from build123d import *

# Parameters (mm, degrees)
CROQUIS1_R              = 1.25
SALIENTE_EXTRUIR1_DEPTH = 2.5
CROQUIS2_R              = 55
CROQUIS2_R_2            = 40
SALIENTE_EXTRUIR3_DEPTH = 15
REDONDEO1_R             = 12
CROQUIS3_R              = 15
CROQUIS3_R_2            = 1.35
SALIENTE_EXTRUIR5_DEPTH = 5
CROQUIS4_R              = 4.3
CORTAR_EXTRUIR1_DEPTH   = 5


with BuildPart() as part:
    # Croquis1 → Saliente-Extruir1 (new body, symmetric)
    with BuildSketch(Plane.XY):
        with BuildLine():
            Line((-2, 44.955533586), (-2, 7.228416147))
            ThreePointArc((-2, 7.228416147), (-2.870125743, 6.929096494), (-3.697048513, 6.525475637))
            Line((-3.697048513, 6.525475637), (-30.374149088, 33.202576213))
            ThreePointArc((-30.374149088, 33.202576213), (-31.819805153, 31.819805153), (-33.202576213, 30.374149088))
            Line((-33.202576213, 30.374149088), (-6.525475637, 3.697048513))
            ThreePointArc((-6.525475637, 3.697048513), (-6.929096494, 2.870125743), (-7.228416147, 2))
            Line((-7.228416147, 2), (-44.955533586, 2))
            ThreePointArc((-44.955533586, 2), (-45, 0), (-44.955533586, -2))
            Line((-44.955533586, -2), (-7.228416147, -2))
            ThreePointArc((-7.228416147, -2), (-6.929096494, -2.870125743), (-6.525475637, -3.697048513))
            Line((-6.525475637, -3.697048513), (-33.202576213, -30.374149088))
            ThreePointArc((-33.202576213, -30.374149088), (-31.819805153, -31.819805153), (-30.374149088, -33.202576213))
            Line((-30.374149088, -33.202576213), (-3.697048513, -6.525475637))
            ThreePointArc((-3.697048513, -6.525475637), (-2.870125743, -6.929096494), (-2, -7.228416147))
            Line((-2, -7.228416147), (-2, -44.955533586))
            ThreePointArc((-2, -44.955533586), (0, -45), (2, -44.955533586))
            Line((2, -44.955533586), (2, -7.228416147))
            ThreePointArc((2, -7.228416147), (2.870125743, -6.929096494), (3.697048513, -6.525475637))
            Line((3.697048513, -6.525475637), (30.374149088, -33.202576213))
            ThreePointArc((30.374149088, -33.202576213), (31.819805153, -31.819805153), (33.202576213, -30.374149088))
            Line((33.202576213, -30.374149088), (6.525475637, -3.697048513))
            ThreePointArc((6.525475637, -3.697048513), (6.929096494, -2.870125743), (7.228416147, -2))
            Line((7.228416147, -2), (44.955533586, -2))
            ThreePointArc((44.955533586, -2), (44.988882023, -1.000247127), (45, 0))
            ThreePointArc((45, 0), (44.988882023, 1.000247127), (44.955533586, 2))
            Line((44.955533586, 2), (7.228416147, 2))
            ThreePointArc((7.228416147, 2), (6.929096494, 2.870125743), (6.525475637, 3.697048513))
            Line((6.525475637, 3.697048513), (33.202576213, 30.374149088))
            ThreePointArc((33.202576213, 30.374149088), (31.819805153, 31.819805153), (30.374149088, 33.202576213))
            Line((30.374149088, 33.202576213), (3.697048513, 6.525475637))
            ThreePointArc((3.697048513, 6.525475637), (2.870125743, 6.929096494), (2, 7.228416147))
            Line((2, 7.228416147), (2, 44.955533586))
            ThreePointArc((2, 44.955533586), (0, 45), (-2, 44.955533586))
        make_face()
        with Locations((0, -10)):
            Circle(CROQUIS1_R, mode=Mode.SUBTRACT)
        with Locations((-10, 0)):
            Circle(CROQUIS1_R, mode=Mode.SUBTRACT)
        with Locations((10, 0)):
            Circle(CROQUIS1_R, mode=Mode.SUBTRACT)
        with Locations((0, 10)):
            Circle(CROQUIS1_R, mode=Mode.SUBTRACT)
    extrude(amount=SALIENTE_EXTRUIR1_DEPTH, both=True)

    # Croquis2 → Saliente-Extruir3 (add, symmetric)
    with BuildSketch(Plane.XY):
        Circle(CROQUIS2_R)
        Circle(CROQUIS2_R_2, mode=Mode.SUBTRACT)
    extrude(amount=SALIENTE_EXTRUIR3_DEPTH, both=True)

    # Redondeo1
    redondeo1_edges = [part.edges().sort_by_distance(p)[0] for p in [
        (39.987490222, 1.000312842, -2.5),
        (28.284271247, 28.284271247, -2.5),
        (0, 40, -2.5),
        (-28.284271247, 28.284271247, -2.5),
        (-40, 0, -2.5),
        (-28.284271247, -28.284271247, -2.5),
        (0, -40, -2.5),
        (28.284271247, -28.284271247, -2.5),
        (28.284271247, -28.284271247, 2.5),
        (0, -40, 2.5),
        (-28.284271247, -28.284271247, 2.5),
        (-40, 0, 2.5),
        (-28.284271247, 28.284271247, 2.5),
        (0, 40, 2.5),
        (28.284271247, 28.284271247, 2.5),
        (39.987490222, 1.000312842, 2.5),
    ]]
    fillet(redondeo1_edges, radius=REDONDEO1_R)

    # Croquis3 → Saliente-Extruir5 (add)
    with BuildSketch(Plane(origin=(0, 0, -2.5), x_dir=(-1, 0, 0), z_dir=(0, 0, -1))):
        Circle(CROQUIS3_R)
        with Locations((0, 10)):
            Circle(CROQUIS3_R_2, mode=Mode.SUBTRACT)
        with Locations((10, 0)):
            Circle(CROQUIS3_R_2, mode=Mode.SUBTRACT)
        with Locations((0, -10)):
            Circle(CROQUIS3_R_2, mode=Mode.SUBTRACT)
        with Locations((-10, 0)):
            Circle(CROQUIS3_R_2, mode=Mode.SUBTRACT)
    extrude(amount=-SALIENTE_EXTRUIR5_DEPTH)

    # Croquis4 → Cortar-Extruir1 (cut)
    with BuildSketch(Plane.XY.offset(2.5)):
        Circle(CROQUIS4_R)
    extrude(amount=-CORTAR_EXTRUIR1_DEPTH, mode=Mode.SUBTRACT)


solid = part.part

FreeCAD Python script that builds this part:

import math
import FreeCAD as App
import Part
import Sketcher


def edges_at(feature, points):
    """Names of the edges that pass closest to the given points."""
    edges = feature.Shape.Edges
    near = lambda p: min(range(len(edges)), key=lambda i: edges[i].distToShape(Part.Vertex(*p))[0])
    return sorted({f"Edge{near(p) + 1}" for p in points})

doc = App.newDocument("Part")
body = doc.addObject("PartDesign::Body", "Body")

# Sketch on XY plane
sketch1 = body.newObject("Sketcher::SketchObject", "Sketch")
sketch1.AttachmentSupport = (doc.getObject("XY_Plane"), [""])
sketch1.MapMode = "FlatFace"
sketch1.addGeometry([
    Part.LineSegment(App.Vector(-2, 45, 0), App.Vector(-2, 7.2, 0)),  # 0
    Part.ArcOfCircle(Part.Circle(App.Vector(0, 0, 0), App.Vector(0, 0, 1), 7.5), math.radians(105.47), math.radians(119.53)),  # 1
    Part.LineSegment(App.Vector(-3.7, 6.5, 0), App.Vector(-30.4, 33.2, 0)),  # 2
    Part.ArcOfCircle(Part.Circle(App.Vector(0, 0, 0), App.Vector(0, 0, 1), 45), math.radians(132.45), math.radians(137.55)),  # 3
    Part.LineSegment(App.Vector(-33.2, 30.4, 0), App.Vector(-6.5, 3.7, 0)),  # 4
    Part.ArcOfCircle(Part.Circle(App.Vector(0, 0, 0), App.Vector(0, 0, 1), 7.5), math.radians(150.47), math.radians(164.53)),  # 5
    Part.LineSegment(App.Vector(-7.2, 2, 0), App.Vector(-45, 2, 0)),  # 6
    Part.ArcOfCircle(Part.Circle(App.Vector(0, 0, 0), App.Vector(0, 0, 1), 45), math.radians(177.45), math.radians(182.55)),  # 7
    Part.LineSegment(App.Vector(-45, -2, 0), App.Vector(-7.2, -2, 0)),  # 8
    Part.ArcOfCircle(Part.Circle(App.Vector(0, 0, 0), App.Vector(0, 0, 1), 7.5), math.radians(-164.53), math.radians(-150.47)),  # 9
    Part.LineSegment(App.Vector(-6.5, -3.7, 0), App.Vector(-33.2, -30.4, 0)),  # 10
    Part.ArcOfCircle(Part.Circle(App.Vector(0, 0, 0), App.Vector(0, 0, 1), 45), math.radians(-137.55), math.radians(-132.45)),  # 11
    Part.LineSegment(App.Vector(-30.4, -33.2, 0), App.Vector(-3.7, -6.5, 0)),  # 12
    Part.ArcOfCircle(Part.Circle(App.Vector(0, 0, 0), App.Vector(0, 0, 1), 7.5), math.radians(-119.53), math.radians(-105.47)),  # 13
    Part.LineSegment(App.Vector(-2, -7.2, 0), App.Vector(-2, -45, 0)),  # 14
    Part.ArcOfCircle(Part.Circle(App.Vector(0, 0, 0), App.Vector(0, 0, 1), 45), math.radians(-92.55), math.radians(-87.45)),  # 15
    Part.LineSegment(App.Vector(2, -45, 0), App.Vector(2, -7.2, 0)),  # 16
    Part.ArcOfCircle(Part.Circle(App.Vector(0, 0, 0), App.Vector(0, 0, 1), 7.5), math.radians(-74.53), math.radians(-60.47)),  # 17
    Part.LineSegment(App.Vector(3.7, -6.5, 0), App.Vector(30.4, -33.2, 0)),  # 18
    Part.ArcOfCircle(Part.Circle(App.Vector(0, 0, 0), App.Vector(0, 0, 1), 45), math.radians(-47.55), math.radians(-42.45)),  # 19
    Part.LineSegment(App.Vector(33.2, -30.4, 0), App.Vector(6.5, -3.7, 0)),  # 20
    Part.ArcOfCircle(Part.Circle(App.Vector(0, 0, 0), App.Vector(0, 0, 1), 7.5), math.radians(-29.53), math.radians(-15.47)),  # 21
    Part.LineSegment(App.Vector(7.2, -2, 0), App.Vector(45, -2, 0)),  # 22
    Part.ArcOfCircle(Part.Circle(App.Vector(0, 0, 0), App.Vector(0, 0, 1), 45), math.radians(-2.55), math.radians(0)),  # 23
    Part.ArcOfCircle(Part.Circle(App.Vector(0, 0, 0), App.Vector(0, 0, 1), 45), math.radians(0), math.radians(2.55)),  # 24
    Part.LineSegment(App.Vector(45, 2, 0), App.Vector(7.2, 2, 0)),  # 25
    Part.ArcOfCircle(Part.Circle(App.Vector(0, 0, 0), App.Vector(0, 0, 1), 7.5), math.radians(15.47), math.radians(29.53)),  # 26
    Part.LineSegment(App.Vector(6.5, 3.7, 0), App.Vector(33.2, 30.4, 0)),  # 27
    Part.ArcOfCircle(Part.Circle(App.Vector(0, 0, 0), App.Vector(0, 0, 1), 45), math.radians(42.45), math.radians(47.55)),  # 28
    Part.LineSegment(App.Vector(30.4, 33.2, 0), App.Vector(3.7, 6.5, 0)),  # 29
    Part.ArcOfCircle(Part.Circle(App.Vector(0, 0, 0), App.Vector(0, 0, 1), 7.5), math.radians(60.47), math.radians(74.53)),  # 30
    Part.LineSegment(App.Vector(2, 7.2, 0), App.Vector(2, 45, 0)),  # 31
    Part.ArcOfCircle(Part.Circle(App.Vector(0, 0, 0), App.Vector(0, 0, 1), 45), math.radians(87.45), math.radians(92.55)),  # 32
    Part.Circle(App.Vector(0, -10, 0), App.Vector(0, 0, 1), 1.2),  # 33
    Part.Circle(App.Vector(-10, 0, 0), App.Vector(0, 0, 1), 1.2),  # 34
    Part.Circle(App.Vector(10, 0, 0), App.Vector(0, 0, 1), 1.2),  # 35
    Part.Circle(App.Vector(0, 10, 0), App.Vector(0, 0, 1), 1.2),  # 36
], False)
sketch1.addConstraint([
    Sketcher.Constraint("Coincident", 0, 2, 1, 1),
    Sketcher.Constraint("Coincident", 1, 2, 2, 1),
    Sketcher.Constraint("Coincident", 2, 2, 3, 1),
    Sketcher.Constraint("Coincident", 3, 2, 4, 1),
    Sketcher.Constraint("Coincident", 4, 2, 5, 1),
    Sketcher.Constraint("Coincident", 5, 2, 6, 1),
    Sketcher.Constraint("Coincident", 6, 2, 7, 1),
    Sketcher.Constraint("Coincident", 7, 2, 8, 1),
    Sketcher.Constraint("Coincident", 8, 2, 9, 1),
    Sketcher.Constraint("Coincident", 9, 2, 10, 1),
    Sketcher.Constraint("Coincident", 10, 2, 11, 1),
    Sketcher.Constraint("Coincident", 11, 2, 12, 1),
    Sketcher.Constraint("Coincident", 12, 2, 13, 1),
    Sketcher.Constraint("Coincident", 13, 2, 14, 1),
    Sketcher.Constraint("Coincident", 14, 2, 15, 1),
    Sketcher.Constraint("Coincident", 15, 2, 16, 1),
    Sketcher.Constraint("Coincident", 16, 2, 17, 1),
    Sketcher.Constraint("Coincident", 17, 2, 18, 1),
    Sketcher.Constraint("Coincident", 18, 2, 19, 1),
    Sketcher.Constraint("Coincident", 19, 2, 20, 1),
    Sketcher.Constraint("Coincident", 20, 2, 21, 1),
    Sketcher.Constraint("Coincident", 21, 2, 22, 1),
    Sketcher.Constraint("Coincident", 22, 2, 23, 1),
    Sketcher.Constraint("Tangent", 23, 2, 24, 1),
    Sketcher.Constraint("Coincident", 24, 2, 25, 1),
    Sketcher.Constraint("Coincident", 25, 2, 26, 1),
    Sketcher.Constraint("Coincident", 26, 2, 27, 1),
    Sketcher.Constraint("Coincident", 27, 2, 28, 1),
    Sketcher.Constraint("Coincident", 28, 2, 29, 1),
    Sketcher.Constraint("Coincident", 29, 2, 30, 1),
    Sketcher.Constraint("Coincident", 30, 2, 31, 1),
    Sketcher.Constraint("Coincident", 31, 2, 32, 1),
    Sketcher.Constraint("Coincident", 32, 2, 0, 1),
    Sketcher.Constraint("Vertical", 0),
    Sketcher.Constraint("Horizontal", 6),
    Sketcher.Constraint("Horizontal", 8),
    Sketcher.Constraint("Vertical", 14),
    Sketcher.Constraint("Vertical", 16),
    Sketcher.Constraint("Horizontal", 22),
    Sketcher.Constraint("Horizontal", 25),
    Sketcher.Constraint("Vertical", 31),
    Sketcher.Constraint("Coincident", 1, 3, -1, 1),
    Sketcher.Constraint("Coincident", 3, 3, -1, 1),
    Sketcher.Constraint("Coincident", 5, 3, -1, 1),
    Sketcher.Constraint("Coincident", 7, 3, -1, 1),
    Sketcher.Constraint("Coincident", 9, 3, -1, 1),
    Sketcher.Constraint("Coincident", 11, 3, -1, 1),
    Sketcher.Constraint("Coincident", 13, 3, -1, 1),
    Sketcher.Constraint("Coincident", 15, 3, -1, 1),
    Sketcher.Constraint("Coincident", 17, 3, -1, 1),
    Sketcher.Constraint("Coincident", 19, 3, -1, 1),
    Sketcher.Constraint("Coincident", 21, 3, -1, 1),
    Sketcher.Constraint("Coincident", 23, 3, -1, 1),
    Sketcher.Constraint("Coincident", 26, 3, -1, 1),
    Sketcher.Constraint("Coincident", 28, 3, -1, 1),
    Sketcher.Constraint("Coincident", 30, 3, -1, 1),
    Sketcher.Constraint("Coincident", 32, 3, -1, 1),
    Sketcher.Constraint("Equal", 1, 5),
    Sketcher.Constraint("Equal", 3, 7),
    Sketcher.Constraint("Equal", 5, 9),
    Sketcher.Constraint("Equal", 7, 11),
    Sketcher.Constraint("Equal", 9, 13),
    Sketcher.Constraint("Equal", 11, 15),
    Sketcher.Constraint("Equal", 13, 17),
    Sketcher.Constraint("Equal", 15, 19),
    Sketcher.Constraint("Equal", 17, 21),
    Sketcher.Constraint("Equal", 19, 23),
    Sketcher.Constraint("Equal", 23, 24),
    Sketcher.Constraint("Equal", 21, 26),
    Sketcher.Constraint("Equal", 24, 28),
    Sketcher.Constraint("Equal", 26, 30),
    Sketcher.Constraint("Equal", 28, 32),
    Sketcher.Constraint("Equal", 33, 34),
    Sketcher.Constraint("Equal", 34, 35),
    Sketcher.Constraint("Equal", 35, 36),
    Sketcher.Constraint("Symmetric", 34, 3, 35, 3, -1, 1),
    Sketcher.Constraint("Symmetric", 33, 3, 36, 3, -1, 1),
    Sketcher.Constraint("PointOnObject", 33, 3, -2),
    Sketcher.Constraint("PointOnObject", 34, 3, -1),
    Sketcher.Constraint("PointOnObject", 23, 2, -1),
    Sketcher.Constraint("Parallel", 2, 4),
    Sketcher.Constraint("Perpendicular", 4, 10),
    Sketcher.Constraint("Parallel", 10, 12),
    Sketcher.Constraint("Perpendicular", 12, 18),
    Sketcher.Constraint("Parallel", 18, 20),
    Sketcher.Constraint("Perpendicular", 20, 27),
    Sketcher.Constraint("Parallel", 27, 29),
    Sketcher.Constraint("Horizontal", 14, 2, 15, 2),
    Sketcher.Constraint("Horizontal", 12, 2, 17, 2),
    Sketcher.Constraint("Horizontal", 11, 2, 18, 2),
    Sketcher.Constraint("Horizontal", 10, 2, 19, 2),
    Sketcher.Constraint("Horizontal", 8, 2, 21, 2),
    Sketcher.Constraint("Horizontal", 6, 2, 24, 2),
    Sketcher.Constraint("Horizontal", 4, 2, 26, 2),
    Sketcher.Constraint("Horizontal", 2, 2, 28, 2),
    Sketcher.Constraint("Horizontal", 0, 2, 30, 2),
    Sketcher.Constraint("Vertical", 6, 2, 7, 2),
    Sketcher.Constraint("Vertical", 4, 2, 9, 2),
    Sketcher.Constraint("Vertical", 2, 2, 11, 2),
    Sketcher.Constraint("Vertical", 0, 2, 13, 2),
    Sketcher.Constraint("Equal", 25, 0),
    Sketcher.Constraint("Equal", 2, 4),
    Sketcher.Constraint("Radius", 3, 45.000001),
    Sketcher.Constraint("Diameter", 33, 2.5),
    Sketcher.Constraint("Radius", 1, 7.5),
    Sketcher.Constraint("DistanceY", 33, 3, -1, 1, 10.0),
    Sketcher.Constraint("DistanceX", 34, 3, -1, 1, 10.0),
    Sketcher.Constraint("DistanceX", 0, 2, -1, 1, 2.0),
    Sketcher.Constraint("DistanceX", 2, 2, 1, 2, 26.677101),
])
pad1 = body.newObject("PartDesign::Pad", "Pad")
pad1.Profile = sketch1
pad1.Length = 5
pad1.Midplane = True

# Sketch on XY plane
sketch2 = body.newObject("Sketcher::SketchObject", "Sketch001")
sketch2.AttachmentSupport = (doc.getObject("XY_Plane"), [""])
sketch2.MapMode = "FlatFace"
sketch2.addGeometry([
    Part.Circle(App.Vector(0, 0, 0), App.Vector(0, 0, 1), 55),
    Part.Circle(App.Vector(0, 0, 0), App.Vector(0, 0, 1), 40),
], False)
sketch2.addConstraint([
    Sketcher.Constraint("Coincident", 0, 3, -1, 1),
    Sketcher.Constraint("Coincident", 1, 3, -1, 1),
    Sketcher.Constraint("Diameter", 0, 110.0),
    Sketcher.Constraint("Diameter", 1, 80.0),
])
pad2 = body.newObject("PartDesign::Pad", "Pad001")
pad2.Profile = sketch2
pad2.Length = 30
pad2.Midplane = True
doc.recompute()

fillet = body.newObject("PartDesign::Fillet", "Fillet")
fillet.Base = (pad2, edges_at(pad2, [
    (39.987, 1, -2.5),
    (28.284, 28.284, -2.5),
    (0, 40, -2.5),
    (-28.284, 28.284, -2.5),
    (-40, 0, -2.5),
    (-28.284, -28.284, -2.5),
    (0, -40, -2.5),
    (28.284, -28.284, -2.5),
    (28.284, -28.284, 2.5),
    (0, -40, 2.5),
    (-28.284, -28.284, 2.5),
    (-40, 0, 2.5),
    (-28.284, 28.284, 2.5),
    (0, 40, 2.5),
    (28.284, 28.284, 2.5),
    (39.987, 1, 2.5),
]))
fillet.Radius = 12

# Sketch on XY plane
sketch3 = body.newObject("Sketcher::SketchObject", "Sketch002")
sketch3.AttachmentSupport = (doc.getObject("XY_Plane"), [""])
sketch3.MapMode = "FlatFace"
sketch3.AttachmentOffset = App.Placement(App.Vector(0, 0, -2.5), App.Rotation())
sketch3.addGeometry([
    Part.Circle(App.Vector(0, 0, 0), App.Vector(0, 0, 1), 15),  # 0
    Part.Circle(App.Vector(0, -10, 0), App.Vector(0, 0, 1), 1.4),  # 1
    Part.Circle(App.Vector(10, 0, 0), App.Vector(0, 0, 1), 1.4),  # 2
    Part.Circle(App.Vector(-10, 0, 0), App.Vector(0, 0, 1), 1.4),  # 3
    Part.Circle(App.Vector(0, 10, 0), App.Vector(0, 0, 1), 1.4),  # 4
], False)
sketch3.addConstraint([
    Sketcher.Constraint("Coincident", 0, 3, -1, 1),
    Sketcher.Constraint("Equal", 1, 2),
    Sketcher.Constraint("Equal", 2, 3),
    Sketcher.Constraint("Equal", 3, 4),
    Sketcher.Constraint("Symmetric", 2, 3, 3, 3, -1, 1),
    Sketcher.Constraint("Symmetric", 1, 3, 4, 3, -1, 1),
    Sketcher.Constraint("PointOnObject", 1, 3, -2),
    Sketcher.Constraint("PointOnObject", 2, 3, -1),
    Sketcher.Constraint("Diameter", 0, 30.0),
    Sketcher.Constraint("Diameter", 1, 2.7),
    Sketcher.Constraint("DistanceY", 1, 3, -1, 1, 10.0),
    Sketcher.Constraint("DistanceX", -1, 1, 2, 3, 10.0),
])
pad3 = body.newObject("PartDesign::Pad", "Pad002")
pad3.Profile = sketch3
pad3.Length = 5

# Sketch on XY plane
sketch4 = body.newObject("Sketcher::SketchObject", "Sketch003")
sketch4.AttachmentSupport = (doc.getObject("XY_Plane"), [""])
sketch4.MapMode = "FlatFace"
sketch4.AttachmentOffset = App.Placement(App.Vector(0, 0, 2.5), App.Rotation())
sketch4.addGeometry(Part.Circle(App.Vector(0, 0, 0), App.Vector(0, 0, 1), 4.3), False)
sketch4.addConstraint([
    Sketcher.Constraint("Coincident", 0, 3, -1, 1),
    Sketcher.Constraint("Diameter", 0, 8.6),
])
pocket1 = body.newObject("PartDesign::Pocket", "Pocket")
pocket1.Profile = sketch4
pocket1.Length = 5

doc.recompute()
